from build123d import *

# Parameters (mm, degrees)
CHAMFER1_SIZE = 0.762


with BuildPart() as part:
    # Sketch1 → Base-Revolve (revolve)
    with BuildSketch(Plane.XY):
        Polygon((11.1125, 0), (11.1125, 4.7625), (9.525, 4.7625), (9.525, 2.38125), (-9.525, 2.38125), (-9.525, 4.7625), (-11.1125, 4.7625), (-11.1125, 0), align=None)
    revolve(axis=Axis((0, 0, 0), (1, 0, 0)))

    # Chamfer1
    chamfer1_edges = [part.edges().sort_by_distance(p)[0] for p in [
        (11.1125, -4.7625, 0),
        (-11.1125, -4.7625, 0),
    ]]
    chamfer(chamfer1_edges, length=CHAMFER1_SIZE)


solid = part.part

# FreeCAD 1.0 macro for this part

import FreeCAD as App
import Part
import Sketcher
from FreeCAD import Vector
Q = App.Units.Quantity


def edges_at(feature, points):
    """Names of the edges that pass closest to the given points."""
    edges = feature.Shape.Edges
    near = lambda p: min(range(len(edges)), key=lambda i: edges[i].distToShape(Part.Vertex(*p))[0])
    return sorted({f"Edge{near(p) + 1}" for p in points})

doc = App.newDocument("Part")
body = doc.addObject("PartDesign::Body", "Body")

# Sketch on XY plane
sketch1 = body.newObject("Sketcher::SketchObject", "Sketch")
sketch1.AttachmentSupport = (doc.getObject("XY_Plane"), [""])
sketch1.MapMode = "FlatFace"
sketch1.addGeometry(Part.LineSegment(Vector(11.1, 0, 0), Vector(11.1, 4.8, 0)), False)
sketch1.addGeometry(Part.LineSegment(Vector(11.1, 4.8, 0), Vector(9.5, 4.8, 0)), False)
sketch1.addGeometry(Part.LineSegment(Vector(9.5, 4.8, 0), Vector(9.5, 2.4, 0)), False)
sketch1.addGeometry(Part.LineSegment(Vector(9.5, 2.4, 0), Vector(-9.5, 2.4, 0)), False)
sketch1.addGeometry(Part.LineSegment(Vector(-9.5, 2.4, 0), Vector(-9.5, 4.8, 0)), False)
sketch1.addGeometry(Part.LineSegment(Vector(-9.5, 4.8, 0), Vector(-11.1, 4.8, 0)), False)
sketch1.addGeometry(Part.LineSegment(Vector(-11.1, 4.8, 0), Vector(-11.1, 0, 0)), False)
sketch1.addGeometry(Part.LineSegment(Vector(-11.1, 0, 0), Vector(11.1, 0, 0)), False)
sketch1.addConstraint(Sketcher.Constraint("Coincident", 0, 2, 1, 1))
sketch1.addConstraint(Sketcher.Constraint("Coincident", 1, 2, 2, 1))
sketch1.addConstraint(Sketcher.Constraint("Coincident", 2, 2, 3, 1))
sketch1.addConstraint(Sketcher.Constraint("Coincident", 3, 2, 4, 1))
sketch1.addConstraint(Sketcher.Constraint("Coincident", 4, 2, 5, 1))
sketch1.addConstraint(Sketcher.Constraint("Coincident", 5, 2, 6, 1))
sketch1.addConstraint(Sketcher.Constraint("Coincident", 6, 2, 7, 1))
sketch1.addConstraint(Sketcher.Constraint("Coincident", 7, 2, 0, 1))
sketch1.addConstraint(Sketcher.Constraint("Vertical", 0))
sketch1.addConstraint(Sketcher.Constraint("Horizontal", 1))
sketch1.addConstraint(Sketcher.Constraint("Vertical", 2))
sketch1.addConstraint(Sketcher.Constraint("Horizontal", 3))
sketch1.addConstraint(Sketcher.Constraint("Vertical", 4))
sketch1.addConstraint(Sketcher.Constraint("Horizontal", 5))
sketch1.addConstraint(Sketcher.Constraint("Vertical", 6))
sketch1.addConstraint(Sketcher.Constraint("Horizontal", 7))
sketch1.addConstraint(Sketcher.Constraint("Symmetric", 6, 2, 7, 2, -1, 1))
sketch1.addConstraint(Sketcher.Constraint("Symmetric", 1, 2, 4, 2, -2))
sketch1.addConstraint(Sketcher.Constraint("DistanceX", 3, 2, 3, 1, Q("0.75 in")))
sketch1.addConstraint(Sketcher.Constraint("DistanceX", 1, 2, 1, 1, Q("0.0625 in")))
sketch1.addConstraint(Sketcher.Constraint("DistanceY", 0, 1, 0, 2, Q("0.1875 in")))
sketch1.addConstraint(Sketcher.Constraint("DistanceY", 2, 2, 2, 1, Q("0.09375 in")))
revolution = body.newObject("PartDesign::Revolution", "Revolution")
revolution.Profile = sketch1
revolution.ReferenceAxis = (sketch1, ["H_Axis"])
revolution.Angle = 360
doc.recompute()

chamfer = body.newObject("PartDesign::Chamfer", "Chamfer")
chamfer.Base = (revolution, edges_at(revolution, [(11.113, -4.763, 0), (-11.113, -4.763, 0)]))
chamfer.Size = Q("0.03 in")

doc.recompute()
